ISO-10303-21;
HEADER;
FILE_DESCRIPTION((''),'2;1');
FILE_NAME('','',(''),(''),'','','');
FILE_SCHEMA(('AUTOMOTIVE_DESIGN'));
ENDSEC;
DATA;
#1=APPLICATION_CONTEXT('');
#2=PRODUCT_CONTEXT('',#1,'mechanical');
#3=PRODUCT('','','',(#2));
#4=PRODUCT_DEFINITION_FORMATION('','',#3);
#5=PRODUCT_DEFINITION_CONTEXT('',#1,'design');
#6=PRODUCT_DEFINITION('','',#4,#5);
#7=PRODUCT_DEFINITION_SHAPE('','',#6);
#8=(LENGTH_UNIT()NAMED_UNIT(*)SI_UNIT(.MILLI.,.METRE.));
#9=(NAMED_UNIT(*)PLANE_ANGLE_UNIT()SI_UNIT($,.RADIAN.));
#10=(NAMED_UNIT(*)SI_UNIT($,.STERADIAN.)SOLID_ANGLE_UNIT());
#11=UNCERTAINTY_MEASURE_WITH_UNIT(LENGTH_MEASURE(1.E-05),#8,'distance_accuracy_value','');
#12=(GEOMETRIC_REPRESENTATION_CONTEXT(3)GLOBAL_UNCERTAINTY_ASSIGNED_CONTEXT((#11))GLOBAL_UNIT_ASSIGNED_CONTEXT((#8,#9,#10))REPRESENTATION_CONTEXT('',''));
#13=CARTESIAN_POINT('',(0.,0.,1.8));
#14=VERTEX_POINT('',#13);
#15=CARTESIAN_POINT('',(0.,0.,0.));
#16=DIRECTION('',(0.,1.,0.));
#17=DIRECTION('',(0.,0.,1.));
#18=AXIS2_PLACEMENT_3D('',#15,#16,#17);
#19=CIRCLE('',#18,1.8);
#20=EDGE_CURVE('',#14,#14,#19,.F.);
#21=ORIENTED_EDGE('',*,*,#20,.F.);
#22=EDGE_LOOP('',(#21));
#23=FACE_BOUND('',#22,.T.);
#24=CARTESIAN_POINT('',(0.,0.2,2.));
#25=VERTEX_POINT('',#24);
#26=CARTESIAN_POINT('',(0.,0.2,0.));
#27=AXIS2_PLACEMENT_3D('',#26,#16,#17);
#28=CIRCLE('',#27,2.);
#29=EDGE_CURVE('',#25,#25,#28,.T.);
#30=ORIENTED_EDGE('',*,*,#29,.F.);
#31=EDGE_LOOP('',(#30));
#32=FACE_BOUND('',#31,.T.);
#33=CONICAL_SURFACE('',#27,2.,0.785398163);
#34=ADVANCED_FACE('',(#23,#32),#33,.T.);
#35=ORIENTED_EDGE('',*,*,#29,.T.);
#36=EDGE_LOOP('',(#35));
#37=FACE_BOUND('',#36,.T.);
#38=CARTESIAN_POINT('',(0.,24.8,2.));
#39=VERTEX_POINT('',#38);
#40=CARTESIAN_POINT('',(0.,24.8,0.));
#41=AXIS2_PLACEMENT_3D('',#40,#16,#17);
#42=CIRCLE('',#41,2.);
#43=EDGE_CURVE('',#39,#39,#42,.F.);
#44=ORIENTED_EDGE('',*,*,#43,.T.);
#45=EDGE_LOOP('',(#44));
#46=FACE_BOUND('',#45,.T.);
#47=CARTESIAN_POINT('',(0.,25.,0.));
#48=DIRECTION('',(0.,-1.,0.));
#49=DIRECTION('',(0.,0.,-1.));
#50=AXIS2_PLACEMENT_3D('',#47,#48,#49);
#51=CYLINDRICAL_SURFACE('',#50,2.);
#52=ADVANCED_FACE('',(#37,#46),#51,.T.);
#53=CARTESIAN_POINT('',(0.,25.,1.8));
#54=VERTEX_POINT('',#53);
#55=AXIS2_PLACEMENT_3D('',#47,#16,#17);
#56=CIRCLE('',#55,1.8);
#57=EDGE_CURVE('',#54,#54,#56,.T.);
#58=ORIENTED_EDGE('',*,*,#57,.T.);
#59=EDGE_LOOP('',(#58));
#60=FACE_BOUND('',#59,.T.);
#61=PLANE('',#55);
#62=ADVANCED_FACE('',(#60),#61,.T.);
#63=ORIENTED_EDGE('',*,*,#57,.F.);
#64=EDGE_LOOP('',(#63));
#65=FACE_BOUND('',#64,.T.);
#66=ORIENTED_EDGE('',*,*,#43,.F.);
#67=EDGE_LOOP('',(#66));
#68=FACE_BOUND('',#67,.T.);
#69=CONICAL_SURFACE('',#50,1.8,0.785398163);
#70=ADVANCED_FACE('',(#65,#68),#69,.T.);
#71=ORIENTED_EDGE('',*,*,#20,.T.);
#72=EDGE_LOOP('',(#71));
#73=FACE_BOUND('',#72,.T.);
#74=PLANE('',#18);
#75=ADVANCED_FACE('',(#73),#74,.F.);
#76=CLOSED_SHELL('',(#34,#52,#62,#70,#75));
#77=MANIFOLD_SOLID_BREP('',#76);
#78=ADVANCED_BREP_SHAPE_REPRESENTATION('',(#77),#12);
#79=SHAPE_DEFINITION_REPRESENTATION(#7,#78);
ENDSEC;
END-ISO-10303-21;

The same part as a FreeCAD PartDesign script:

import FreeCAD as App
import Part
import Sketcher
Q = App.Units.Quantity


def edges_at(feature, points):
    """Names of the edges that pass closest to the given points."""
    edges = feature.Shape.Edges
    near = lambda p: min(range(len(edges)), key=lambda i: edges[i].distToShape(Part.Vertex(*p))[0])
    return sorted({f"Edge{near(p) + 1}" for p in points})

doc = App.newDocument("Part")
body = doc.addObject("PartDesign::Body", "Body")

sketch1 = body.newObject("Sketcher::SketchObject", "Sketch")
sketch1.AttachmentSupport = (doc.getObject("XZ_Plane"), [""])
sketch1.MapMode = "FlatFace"
sketch1.addGeometry(Part.Circle(App.Vector(0, 0, 0), App.Vector(0, 0, 1), 2), False)
sketch1.addConstraint([
    Sketcher.Constraint("Coincident", 0, 3, -1, 1),
    Sketcher.Constraint("Diameter", 0, Q("4 mm")),
])
pad1 = body.newObject("PartDesign::Pad", "Pad")
pad1.Profile = sketch1
pad1.Length = 25
pad1.Reversed = True
doc.recompute()

chamfer = body.newObject("PartDesign::Chamfer", "Chamfer")
chamfer.Base = (pad1, edges_at(pad1, [(-2, 0, 0), (-2, 25, 0)]))
chamfer.Size = 0.2

doc.recompute()
